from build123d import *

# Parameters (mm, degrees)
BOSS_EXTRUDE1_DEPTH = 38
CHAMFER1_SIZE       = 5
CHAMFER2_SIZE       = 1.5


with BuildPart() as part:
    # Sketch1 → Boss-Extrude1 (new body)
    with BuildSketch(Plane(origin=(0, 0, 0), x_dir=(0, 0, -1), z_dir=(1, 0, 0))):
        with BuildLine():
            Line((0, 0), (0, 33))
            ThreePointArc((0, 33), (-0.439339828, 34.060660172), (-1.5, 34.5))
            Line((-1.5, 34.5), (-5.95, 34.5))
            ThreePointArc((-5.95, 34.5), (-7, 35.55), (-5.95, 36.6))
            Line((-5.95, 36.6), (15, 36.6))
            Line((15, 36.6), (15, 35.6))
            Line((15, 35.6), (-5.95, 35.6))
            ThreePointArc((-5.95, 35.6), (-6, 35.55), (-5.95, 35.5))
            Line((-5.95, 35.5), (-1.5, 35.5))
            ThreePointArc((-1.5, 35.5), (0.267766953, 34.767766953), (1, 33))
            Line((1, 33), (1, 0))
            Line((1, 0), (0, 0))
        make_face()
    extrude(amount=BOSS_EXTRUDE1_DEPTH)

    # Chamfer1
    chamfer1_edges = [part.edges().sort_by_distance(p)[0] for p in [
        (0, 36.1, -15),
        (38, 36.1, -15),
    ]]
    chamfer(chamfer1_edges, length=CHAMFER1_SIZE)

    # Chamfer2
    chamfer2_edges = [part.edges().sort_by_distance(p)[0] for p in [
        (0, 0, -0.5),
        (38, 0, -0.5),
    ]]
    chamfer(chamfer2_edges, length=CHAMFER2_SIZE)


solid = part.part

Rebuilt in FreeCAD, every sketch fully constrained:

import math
import FreeCAD as App
import Part
import Sketcher
from FreeCAD import Vector


def edges_at(feature, points):
    """Names of the edges that pass closest to the given points."""
    edges = feature.Shape.Edges
    near = lambda p: min(range(len(edges)), key=lambda i: edges[i].distToShape(Part.Vertex(*p))[0])
    return sorted({f"Edge{near(p) + 1}" for p in points})

doc = App.newDocument("Part")
body = doc.addObject("PartDesign::Body", "Body")

sketch1 = body.newObject("Sketcher::SketchObject", "Sketch")
sketch1.AttachmentSupport = (doc.getObject("YZ_Plane"), [""])
sketch1.MapMode = "FlatFace"
sketch1.addGeometry([
    Part.LineSegment(Vector(33, 0, 0), Vector(0, 0, 0)),
    Part.LineSegment(Vector(0, 0, 0), Vector(0, -1, 0)),
    Part.LineSegment(Vector(0, -1, 0), Vector(33, -1, 0)),
    Part.ArcOfCircle(Part.Circle(Vector(33, 1.5, 0), Vector(0, 0, 1), 2.5), math.radians(-90), math.radians(0)),
    Part.LineSegment(Vector(35.5, 1.5, 0), Vector(35.5, 5.95, 0)),
    Part.ArcOfCircle(Part.Circle(Vector(35.55, 5.95, 0), Vector(0, 0, 1), 0.05), math.radians(0), math.radians(180)),
    Part.LineSegment(Vector(35.6, 5.95, 0), Vector(35.6, -15, 0)),
    Part.LineSegment(Vector(35.6, -15, 0), Vector(36.6, -15, 0)),
    Part.LineSegment(Vector(36.6, -15, 0), Vector(36.6, 5.95, 0)),
    Part.ArcOfCircle(Part.Circle(Vector(35.55, 5.95, 0), Vector(0, 0, 1), 1.05), math.radians(0), math.radians(180)),
    Part.LineSegment(Vector(34.5, 5.95, 0), Vector(34.5, 1.5, 0)),
    Part.ArcOfCircle(Part.Circle(Vector(33, 1.5, 0), Vector(0, 0, 1), 1.5), math.radians(-90), math.radians(0)),
], False)
sketch1.addConstraint([
    Sketcher.Constraint("Coincident", 0, 2, 1, 1),
    Sketcher.Constraint("Coincident", 1, 2, 2, 1),
    Sketcher.Constraint("Tangent", 2, 2, 3, 1),
    Sketcher.Constraint("Tangent", 3, 2, 4, 1),
    Sketcher.Constraint("Tangent", 4, 2, 5, 2),
    Sketcher.Constraint("Tangent", 5, 1, 6, 1),
    Sketcher.Constraint("Coincident", 6, 2, 7, 1),
    Sketcher.Constraint("Coincident", 7, 2, 8, 1),
    Sketcher.Constraint("Tangent", 8, 2, 9, 1),
    Sketcher.Constraint("Tangent", 9, 2, 10, 1),
    Sketcher.Constraint("Tangent", 10, 2, 11, 2),
    Sketcher.Constraint("Tangent", 11, 1, 0, 1),
    Sketcher.Constraint("Horizontal", 0),
    Sketcher.Constraint("Vertical", 1),
    Sketcher.Constraint("Horizontal", 2),
    Sketcher.Constraint("Vertical", 4),
    Sketcher.Constraint("Vertical", 6),
    Sketcher.Constraint("Horizontal", 7),
    Sketcher.Constraint("Vertical", 8),
    Sketcher.Constraint("Vertical", 10),
    Sketcher.Constraint("Coincident", 0, 2, -1, 1),
    Sketcher.Constraint("Coincident", 9, 3, 5, 3),
    Sketcher.Constraint("Coincident", 11, 3, 3, 3),
    Sketcher.Constraint("Radius", 3, 2.5),
    Sketcher.Constraint("Radius", 11, 1.5),
    Sketcher.Constraint("DistanceX", 0, 2, 0, 1, 33.0),
    Sketcher.Constraint("Radius", 5, 0.05),
    Sketcher.Constraint("DistanceY", 6, 2, -1, 1, 15.0),
    Sketcher.Constraint("DistanceY", 4, 1, 4, 2, 4.45),
])
pad1 = body.newObject("PartDesign::Pad", "Pad")
pad1.Profile = sketch1
pad1.Length = 38
doc.recompute()

chamfer = body.newObject("PartDesign::Chamfer", "Chamfer")
chamfer.Base = (pad1, edges_at(pad1, [(0, 36.1, -15), (38, 36.1, -15)]))
chamfer.Size = 5
doc.recompute()

chamfer2 = body.newObject("PartDesign::Chamfer", "Chamfer001")
chamfer2.Base = (chamfer, edges_at(chamfer, [(0, 0, -0.5), (38, 0, -0.5)]))
chamfer2.Size = 1.5

doc.recompute()
